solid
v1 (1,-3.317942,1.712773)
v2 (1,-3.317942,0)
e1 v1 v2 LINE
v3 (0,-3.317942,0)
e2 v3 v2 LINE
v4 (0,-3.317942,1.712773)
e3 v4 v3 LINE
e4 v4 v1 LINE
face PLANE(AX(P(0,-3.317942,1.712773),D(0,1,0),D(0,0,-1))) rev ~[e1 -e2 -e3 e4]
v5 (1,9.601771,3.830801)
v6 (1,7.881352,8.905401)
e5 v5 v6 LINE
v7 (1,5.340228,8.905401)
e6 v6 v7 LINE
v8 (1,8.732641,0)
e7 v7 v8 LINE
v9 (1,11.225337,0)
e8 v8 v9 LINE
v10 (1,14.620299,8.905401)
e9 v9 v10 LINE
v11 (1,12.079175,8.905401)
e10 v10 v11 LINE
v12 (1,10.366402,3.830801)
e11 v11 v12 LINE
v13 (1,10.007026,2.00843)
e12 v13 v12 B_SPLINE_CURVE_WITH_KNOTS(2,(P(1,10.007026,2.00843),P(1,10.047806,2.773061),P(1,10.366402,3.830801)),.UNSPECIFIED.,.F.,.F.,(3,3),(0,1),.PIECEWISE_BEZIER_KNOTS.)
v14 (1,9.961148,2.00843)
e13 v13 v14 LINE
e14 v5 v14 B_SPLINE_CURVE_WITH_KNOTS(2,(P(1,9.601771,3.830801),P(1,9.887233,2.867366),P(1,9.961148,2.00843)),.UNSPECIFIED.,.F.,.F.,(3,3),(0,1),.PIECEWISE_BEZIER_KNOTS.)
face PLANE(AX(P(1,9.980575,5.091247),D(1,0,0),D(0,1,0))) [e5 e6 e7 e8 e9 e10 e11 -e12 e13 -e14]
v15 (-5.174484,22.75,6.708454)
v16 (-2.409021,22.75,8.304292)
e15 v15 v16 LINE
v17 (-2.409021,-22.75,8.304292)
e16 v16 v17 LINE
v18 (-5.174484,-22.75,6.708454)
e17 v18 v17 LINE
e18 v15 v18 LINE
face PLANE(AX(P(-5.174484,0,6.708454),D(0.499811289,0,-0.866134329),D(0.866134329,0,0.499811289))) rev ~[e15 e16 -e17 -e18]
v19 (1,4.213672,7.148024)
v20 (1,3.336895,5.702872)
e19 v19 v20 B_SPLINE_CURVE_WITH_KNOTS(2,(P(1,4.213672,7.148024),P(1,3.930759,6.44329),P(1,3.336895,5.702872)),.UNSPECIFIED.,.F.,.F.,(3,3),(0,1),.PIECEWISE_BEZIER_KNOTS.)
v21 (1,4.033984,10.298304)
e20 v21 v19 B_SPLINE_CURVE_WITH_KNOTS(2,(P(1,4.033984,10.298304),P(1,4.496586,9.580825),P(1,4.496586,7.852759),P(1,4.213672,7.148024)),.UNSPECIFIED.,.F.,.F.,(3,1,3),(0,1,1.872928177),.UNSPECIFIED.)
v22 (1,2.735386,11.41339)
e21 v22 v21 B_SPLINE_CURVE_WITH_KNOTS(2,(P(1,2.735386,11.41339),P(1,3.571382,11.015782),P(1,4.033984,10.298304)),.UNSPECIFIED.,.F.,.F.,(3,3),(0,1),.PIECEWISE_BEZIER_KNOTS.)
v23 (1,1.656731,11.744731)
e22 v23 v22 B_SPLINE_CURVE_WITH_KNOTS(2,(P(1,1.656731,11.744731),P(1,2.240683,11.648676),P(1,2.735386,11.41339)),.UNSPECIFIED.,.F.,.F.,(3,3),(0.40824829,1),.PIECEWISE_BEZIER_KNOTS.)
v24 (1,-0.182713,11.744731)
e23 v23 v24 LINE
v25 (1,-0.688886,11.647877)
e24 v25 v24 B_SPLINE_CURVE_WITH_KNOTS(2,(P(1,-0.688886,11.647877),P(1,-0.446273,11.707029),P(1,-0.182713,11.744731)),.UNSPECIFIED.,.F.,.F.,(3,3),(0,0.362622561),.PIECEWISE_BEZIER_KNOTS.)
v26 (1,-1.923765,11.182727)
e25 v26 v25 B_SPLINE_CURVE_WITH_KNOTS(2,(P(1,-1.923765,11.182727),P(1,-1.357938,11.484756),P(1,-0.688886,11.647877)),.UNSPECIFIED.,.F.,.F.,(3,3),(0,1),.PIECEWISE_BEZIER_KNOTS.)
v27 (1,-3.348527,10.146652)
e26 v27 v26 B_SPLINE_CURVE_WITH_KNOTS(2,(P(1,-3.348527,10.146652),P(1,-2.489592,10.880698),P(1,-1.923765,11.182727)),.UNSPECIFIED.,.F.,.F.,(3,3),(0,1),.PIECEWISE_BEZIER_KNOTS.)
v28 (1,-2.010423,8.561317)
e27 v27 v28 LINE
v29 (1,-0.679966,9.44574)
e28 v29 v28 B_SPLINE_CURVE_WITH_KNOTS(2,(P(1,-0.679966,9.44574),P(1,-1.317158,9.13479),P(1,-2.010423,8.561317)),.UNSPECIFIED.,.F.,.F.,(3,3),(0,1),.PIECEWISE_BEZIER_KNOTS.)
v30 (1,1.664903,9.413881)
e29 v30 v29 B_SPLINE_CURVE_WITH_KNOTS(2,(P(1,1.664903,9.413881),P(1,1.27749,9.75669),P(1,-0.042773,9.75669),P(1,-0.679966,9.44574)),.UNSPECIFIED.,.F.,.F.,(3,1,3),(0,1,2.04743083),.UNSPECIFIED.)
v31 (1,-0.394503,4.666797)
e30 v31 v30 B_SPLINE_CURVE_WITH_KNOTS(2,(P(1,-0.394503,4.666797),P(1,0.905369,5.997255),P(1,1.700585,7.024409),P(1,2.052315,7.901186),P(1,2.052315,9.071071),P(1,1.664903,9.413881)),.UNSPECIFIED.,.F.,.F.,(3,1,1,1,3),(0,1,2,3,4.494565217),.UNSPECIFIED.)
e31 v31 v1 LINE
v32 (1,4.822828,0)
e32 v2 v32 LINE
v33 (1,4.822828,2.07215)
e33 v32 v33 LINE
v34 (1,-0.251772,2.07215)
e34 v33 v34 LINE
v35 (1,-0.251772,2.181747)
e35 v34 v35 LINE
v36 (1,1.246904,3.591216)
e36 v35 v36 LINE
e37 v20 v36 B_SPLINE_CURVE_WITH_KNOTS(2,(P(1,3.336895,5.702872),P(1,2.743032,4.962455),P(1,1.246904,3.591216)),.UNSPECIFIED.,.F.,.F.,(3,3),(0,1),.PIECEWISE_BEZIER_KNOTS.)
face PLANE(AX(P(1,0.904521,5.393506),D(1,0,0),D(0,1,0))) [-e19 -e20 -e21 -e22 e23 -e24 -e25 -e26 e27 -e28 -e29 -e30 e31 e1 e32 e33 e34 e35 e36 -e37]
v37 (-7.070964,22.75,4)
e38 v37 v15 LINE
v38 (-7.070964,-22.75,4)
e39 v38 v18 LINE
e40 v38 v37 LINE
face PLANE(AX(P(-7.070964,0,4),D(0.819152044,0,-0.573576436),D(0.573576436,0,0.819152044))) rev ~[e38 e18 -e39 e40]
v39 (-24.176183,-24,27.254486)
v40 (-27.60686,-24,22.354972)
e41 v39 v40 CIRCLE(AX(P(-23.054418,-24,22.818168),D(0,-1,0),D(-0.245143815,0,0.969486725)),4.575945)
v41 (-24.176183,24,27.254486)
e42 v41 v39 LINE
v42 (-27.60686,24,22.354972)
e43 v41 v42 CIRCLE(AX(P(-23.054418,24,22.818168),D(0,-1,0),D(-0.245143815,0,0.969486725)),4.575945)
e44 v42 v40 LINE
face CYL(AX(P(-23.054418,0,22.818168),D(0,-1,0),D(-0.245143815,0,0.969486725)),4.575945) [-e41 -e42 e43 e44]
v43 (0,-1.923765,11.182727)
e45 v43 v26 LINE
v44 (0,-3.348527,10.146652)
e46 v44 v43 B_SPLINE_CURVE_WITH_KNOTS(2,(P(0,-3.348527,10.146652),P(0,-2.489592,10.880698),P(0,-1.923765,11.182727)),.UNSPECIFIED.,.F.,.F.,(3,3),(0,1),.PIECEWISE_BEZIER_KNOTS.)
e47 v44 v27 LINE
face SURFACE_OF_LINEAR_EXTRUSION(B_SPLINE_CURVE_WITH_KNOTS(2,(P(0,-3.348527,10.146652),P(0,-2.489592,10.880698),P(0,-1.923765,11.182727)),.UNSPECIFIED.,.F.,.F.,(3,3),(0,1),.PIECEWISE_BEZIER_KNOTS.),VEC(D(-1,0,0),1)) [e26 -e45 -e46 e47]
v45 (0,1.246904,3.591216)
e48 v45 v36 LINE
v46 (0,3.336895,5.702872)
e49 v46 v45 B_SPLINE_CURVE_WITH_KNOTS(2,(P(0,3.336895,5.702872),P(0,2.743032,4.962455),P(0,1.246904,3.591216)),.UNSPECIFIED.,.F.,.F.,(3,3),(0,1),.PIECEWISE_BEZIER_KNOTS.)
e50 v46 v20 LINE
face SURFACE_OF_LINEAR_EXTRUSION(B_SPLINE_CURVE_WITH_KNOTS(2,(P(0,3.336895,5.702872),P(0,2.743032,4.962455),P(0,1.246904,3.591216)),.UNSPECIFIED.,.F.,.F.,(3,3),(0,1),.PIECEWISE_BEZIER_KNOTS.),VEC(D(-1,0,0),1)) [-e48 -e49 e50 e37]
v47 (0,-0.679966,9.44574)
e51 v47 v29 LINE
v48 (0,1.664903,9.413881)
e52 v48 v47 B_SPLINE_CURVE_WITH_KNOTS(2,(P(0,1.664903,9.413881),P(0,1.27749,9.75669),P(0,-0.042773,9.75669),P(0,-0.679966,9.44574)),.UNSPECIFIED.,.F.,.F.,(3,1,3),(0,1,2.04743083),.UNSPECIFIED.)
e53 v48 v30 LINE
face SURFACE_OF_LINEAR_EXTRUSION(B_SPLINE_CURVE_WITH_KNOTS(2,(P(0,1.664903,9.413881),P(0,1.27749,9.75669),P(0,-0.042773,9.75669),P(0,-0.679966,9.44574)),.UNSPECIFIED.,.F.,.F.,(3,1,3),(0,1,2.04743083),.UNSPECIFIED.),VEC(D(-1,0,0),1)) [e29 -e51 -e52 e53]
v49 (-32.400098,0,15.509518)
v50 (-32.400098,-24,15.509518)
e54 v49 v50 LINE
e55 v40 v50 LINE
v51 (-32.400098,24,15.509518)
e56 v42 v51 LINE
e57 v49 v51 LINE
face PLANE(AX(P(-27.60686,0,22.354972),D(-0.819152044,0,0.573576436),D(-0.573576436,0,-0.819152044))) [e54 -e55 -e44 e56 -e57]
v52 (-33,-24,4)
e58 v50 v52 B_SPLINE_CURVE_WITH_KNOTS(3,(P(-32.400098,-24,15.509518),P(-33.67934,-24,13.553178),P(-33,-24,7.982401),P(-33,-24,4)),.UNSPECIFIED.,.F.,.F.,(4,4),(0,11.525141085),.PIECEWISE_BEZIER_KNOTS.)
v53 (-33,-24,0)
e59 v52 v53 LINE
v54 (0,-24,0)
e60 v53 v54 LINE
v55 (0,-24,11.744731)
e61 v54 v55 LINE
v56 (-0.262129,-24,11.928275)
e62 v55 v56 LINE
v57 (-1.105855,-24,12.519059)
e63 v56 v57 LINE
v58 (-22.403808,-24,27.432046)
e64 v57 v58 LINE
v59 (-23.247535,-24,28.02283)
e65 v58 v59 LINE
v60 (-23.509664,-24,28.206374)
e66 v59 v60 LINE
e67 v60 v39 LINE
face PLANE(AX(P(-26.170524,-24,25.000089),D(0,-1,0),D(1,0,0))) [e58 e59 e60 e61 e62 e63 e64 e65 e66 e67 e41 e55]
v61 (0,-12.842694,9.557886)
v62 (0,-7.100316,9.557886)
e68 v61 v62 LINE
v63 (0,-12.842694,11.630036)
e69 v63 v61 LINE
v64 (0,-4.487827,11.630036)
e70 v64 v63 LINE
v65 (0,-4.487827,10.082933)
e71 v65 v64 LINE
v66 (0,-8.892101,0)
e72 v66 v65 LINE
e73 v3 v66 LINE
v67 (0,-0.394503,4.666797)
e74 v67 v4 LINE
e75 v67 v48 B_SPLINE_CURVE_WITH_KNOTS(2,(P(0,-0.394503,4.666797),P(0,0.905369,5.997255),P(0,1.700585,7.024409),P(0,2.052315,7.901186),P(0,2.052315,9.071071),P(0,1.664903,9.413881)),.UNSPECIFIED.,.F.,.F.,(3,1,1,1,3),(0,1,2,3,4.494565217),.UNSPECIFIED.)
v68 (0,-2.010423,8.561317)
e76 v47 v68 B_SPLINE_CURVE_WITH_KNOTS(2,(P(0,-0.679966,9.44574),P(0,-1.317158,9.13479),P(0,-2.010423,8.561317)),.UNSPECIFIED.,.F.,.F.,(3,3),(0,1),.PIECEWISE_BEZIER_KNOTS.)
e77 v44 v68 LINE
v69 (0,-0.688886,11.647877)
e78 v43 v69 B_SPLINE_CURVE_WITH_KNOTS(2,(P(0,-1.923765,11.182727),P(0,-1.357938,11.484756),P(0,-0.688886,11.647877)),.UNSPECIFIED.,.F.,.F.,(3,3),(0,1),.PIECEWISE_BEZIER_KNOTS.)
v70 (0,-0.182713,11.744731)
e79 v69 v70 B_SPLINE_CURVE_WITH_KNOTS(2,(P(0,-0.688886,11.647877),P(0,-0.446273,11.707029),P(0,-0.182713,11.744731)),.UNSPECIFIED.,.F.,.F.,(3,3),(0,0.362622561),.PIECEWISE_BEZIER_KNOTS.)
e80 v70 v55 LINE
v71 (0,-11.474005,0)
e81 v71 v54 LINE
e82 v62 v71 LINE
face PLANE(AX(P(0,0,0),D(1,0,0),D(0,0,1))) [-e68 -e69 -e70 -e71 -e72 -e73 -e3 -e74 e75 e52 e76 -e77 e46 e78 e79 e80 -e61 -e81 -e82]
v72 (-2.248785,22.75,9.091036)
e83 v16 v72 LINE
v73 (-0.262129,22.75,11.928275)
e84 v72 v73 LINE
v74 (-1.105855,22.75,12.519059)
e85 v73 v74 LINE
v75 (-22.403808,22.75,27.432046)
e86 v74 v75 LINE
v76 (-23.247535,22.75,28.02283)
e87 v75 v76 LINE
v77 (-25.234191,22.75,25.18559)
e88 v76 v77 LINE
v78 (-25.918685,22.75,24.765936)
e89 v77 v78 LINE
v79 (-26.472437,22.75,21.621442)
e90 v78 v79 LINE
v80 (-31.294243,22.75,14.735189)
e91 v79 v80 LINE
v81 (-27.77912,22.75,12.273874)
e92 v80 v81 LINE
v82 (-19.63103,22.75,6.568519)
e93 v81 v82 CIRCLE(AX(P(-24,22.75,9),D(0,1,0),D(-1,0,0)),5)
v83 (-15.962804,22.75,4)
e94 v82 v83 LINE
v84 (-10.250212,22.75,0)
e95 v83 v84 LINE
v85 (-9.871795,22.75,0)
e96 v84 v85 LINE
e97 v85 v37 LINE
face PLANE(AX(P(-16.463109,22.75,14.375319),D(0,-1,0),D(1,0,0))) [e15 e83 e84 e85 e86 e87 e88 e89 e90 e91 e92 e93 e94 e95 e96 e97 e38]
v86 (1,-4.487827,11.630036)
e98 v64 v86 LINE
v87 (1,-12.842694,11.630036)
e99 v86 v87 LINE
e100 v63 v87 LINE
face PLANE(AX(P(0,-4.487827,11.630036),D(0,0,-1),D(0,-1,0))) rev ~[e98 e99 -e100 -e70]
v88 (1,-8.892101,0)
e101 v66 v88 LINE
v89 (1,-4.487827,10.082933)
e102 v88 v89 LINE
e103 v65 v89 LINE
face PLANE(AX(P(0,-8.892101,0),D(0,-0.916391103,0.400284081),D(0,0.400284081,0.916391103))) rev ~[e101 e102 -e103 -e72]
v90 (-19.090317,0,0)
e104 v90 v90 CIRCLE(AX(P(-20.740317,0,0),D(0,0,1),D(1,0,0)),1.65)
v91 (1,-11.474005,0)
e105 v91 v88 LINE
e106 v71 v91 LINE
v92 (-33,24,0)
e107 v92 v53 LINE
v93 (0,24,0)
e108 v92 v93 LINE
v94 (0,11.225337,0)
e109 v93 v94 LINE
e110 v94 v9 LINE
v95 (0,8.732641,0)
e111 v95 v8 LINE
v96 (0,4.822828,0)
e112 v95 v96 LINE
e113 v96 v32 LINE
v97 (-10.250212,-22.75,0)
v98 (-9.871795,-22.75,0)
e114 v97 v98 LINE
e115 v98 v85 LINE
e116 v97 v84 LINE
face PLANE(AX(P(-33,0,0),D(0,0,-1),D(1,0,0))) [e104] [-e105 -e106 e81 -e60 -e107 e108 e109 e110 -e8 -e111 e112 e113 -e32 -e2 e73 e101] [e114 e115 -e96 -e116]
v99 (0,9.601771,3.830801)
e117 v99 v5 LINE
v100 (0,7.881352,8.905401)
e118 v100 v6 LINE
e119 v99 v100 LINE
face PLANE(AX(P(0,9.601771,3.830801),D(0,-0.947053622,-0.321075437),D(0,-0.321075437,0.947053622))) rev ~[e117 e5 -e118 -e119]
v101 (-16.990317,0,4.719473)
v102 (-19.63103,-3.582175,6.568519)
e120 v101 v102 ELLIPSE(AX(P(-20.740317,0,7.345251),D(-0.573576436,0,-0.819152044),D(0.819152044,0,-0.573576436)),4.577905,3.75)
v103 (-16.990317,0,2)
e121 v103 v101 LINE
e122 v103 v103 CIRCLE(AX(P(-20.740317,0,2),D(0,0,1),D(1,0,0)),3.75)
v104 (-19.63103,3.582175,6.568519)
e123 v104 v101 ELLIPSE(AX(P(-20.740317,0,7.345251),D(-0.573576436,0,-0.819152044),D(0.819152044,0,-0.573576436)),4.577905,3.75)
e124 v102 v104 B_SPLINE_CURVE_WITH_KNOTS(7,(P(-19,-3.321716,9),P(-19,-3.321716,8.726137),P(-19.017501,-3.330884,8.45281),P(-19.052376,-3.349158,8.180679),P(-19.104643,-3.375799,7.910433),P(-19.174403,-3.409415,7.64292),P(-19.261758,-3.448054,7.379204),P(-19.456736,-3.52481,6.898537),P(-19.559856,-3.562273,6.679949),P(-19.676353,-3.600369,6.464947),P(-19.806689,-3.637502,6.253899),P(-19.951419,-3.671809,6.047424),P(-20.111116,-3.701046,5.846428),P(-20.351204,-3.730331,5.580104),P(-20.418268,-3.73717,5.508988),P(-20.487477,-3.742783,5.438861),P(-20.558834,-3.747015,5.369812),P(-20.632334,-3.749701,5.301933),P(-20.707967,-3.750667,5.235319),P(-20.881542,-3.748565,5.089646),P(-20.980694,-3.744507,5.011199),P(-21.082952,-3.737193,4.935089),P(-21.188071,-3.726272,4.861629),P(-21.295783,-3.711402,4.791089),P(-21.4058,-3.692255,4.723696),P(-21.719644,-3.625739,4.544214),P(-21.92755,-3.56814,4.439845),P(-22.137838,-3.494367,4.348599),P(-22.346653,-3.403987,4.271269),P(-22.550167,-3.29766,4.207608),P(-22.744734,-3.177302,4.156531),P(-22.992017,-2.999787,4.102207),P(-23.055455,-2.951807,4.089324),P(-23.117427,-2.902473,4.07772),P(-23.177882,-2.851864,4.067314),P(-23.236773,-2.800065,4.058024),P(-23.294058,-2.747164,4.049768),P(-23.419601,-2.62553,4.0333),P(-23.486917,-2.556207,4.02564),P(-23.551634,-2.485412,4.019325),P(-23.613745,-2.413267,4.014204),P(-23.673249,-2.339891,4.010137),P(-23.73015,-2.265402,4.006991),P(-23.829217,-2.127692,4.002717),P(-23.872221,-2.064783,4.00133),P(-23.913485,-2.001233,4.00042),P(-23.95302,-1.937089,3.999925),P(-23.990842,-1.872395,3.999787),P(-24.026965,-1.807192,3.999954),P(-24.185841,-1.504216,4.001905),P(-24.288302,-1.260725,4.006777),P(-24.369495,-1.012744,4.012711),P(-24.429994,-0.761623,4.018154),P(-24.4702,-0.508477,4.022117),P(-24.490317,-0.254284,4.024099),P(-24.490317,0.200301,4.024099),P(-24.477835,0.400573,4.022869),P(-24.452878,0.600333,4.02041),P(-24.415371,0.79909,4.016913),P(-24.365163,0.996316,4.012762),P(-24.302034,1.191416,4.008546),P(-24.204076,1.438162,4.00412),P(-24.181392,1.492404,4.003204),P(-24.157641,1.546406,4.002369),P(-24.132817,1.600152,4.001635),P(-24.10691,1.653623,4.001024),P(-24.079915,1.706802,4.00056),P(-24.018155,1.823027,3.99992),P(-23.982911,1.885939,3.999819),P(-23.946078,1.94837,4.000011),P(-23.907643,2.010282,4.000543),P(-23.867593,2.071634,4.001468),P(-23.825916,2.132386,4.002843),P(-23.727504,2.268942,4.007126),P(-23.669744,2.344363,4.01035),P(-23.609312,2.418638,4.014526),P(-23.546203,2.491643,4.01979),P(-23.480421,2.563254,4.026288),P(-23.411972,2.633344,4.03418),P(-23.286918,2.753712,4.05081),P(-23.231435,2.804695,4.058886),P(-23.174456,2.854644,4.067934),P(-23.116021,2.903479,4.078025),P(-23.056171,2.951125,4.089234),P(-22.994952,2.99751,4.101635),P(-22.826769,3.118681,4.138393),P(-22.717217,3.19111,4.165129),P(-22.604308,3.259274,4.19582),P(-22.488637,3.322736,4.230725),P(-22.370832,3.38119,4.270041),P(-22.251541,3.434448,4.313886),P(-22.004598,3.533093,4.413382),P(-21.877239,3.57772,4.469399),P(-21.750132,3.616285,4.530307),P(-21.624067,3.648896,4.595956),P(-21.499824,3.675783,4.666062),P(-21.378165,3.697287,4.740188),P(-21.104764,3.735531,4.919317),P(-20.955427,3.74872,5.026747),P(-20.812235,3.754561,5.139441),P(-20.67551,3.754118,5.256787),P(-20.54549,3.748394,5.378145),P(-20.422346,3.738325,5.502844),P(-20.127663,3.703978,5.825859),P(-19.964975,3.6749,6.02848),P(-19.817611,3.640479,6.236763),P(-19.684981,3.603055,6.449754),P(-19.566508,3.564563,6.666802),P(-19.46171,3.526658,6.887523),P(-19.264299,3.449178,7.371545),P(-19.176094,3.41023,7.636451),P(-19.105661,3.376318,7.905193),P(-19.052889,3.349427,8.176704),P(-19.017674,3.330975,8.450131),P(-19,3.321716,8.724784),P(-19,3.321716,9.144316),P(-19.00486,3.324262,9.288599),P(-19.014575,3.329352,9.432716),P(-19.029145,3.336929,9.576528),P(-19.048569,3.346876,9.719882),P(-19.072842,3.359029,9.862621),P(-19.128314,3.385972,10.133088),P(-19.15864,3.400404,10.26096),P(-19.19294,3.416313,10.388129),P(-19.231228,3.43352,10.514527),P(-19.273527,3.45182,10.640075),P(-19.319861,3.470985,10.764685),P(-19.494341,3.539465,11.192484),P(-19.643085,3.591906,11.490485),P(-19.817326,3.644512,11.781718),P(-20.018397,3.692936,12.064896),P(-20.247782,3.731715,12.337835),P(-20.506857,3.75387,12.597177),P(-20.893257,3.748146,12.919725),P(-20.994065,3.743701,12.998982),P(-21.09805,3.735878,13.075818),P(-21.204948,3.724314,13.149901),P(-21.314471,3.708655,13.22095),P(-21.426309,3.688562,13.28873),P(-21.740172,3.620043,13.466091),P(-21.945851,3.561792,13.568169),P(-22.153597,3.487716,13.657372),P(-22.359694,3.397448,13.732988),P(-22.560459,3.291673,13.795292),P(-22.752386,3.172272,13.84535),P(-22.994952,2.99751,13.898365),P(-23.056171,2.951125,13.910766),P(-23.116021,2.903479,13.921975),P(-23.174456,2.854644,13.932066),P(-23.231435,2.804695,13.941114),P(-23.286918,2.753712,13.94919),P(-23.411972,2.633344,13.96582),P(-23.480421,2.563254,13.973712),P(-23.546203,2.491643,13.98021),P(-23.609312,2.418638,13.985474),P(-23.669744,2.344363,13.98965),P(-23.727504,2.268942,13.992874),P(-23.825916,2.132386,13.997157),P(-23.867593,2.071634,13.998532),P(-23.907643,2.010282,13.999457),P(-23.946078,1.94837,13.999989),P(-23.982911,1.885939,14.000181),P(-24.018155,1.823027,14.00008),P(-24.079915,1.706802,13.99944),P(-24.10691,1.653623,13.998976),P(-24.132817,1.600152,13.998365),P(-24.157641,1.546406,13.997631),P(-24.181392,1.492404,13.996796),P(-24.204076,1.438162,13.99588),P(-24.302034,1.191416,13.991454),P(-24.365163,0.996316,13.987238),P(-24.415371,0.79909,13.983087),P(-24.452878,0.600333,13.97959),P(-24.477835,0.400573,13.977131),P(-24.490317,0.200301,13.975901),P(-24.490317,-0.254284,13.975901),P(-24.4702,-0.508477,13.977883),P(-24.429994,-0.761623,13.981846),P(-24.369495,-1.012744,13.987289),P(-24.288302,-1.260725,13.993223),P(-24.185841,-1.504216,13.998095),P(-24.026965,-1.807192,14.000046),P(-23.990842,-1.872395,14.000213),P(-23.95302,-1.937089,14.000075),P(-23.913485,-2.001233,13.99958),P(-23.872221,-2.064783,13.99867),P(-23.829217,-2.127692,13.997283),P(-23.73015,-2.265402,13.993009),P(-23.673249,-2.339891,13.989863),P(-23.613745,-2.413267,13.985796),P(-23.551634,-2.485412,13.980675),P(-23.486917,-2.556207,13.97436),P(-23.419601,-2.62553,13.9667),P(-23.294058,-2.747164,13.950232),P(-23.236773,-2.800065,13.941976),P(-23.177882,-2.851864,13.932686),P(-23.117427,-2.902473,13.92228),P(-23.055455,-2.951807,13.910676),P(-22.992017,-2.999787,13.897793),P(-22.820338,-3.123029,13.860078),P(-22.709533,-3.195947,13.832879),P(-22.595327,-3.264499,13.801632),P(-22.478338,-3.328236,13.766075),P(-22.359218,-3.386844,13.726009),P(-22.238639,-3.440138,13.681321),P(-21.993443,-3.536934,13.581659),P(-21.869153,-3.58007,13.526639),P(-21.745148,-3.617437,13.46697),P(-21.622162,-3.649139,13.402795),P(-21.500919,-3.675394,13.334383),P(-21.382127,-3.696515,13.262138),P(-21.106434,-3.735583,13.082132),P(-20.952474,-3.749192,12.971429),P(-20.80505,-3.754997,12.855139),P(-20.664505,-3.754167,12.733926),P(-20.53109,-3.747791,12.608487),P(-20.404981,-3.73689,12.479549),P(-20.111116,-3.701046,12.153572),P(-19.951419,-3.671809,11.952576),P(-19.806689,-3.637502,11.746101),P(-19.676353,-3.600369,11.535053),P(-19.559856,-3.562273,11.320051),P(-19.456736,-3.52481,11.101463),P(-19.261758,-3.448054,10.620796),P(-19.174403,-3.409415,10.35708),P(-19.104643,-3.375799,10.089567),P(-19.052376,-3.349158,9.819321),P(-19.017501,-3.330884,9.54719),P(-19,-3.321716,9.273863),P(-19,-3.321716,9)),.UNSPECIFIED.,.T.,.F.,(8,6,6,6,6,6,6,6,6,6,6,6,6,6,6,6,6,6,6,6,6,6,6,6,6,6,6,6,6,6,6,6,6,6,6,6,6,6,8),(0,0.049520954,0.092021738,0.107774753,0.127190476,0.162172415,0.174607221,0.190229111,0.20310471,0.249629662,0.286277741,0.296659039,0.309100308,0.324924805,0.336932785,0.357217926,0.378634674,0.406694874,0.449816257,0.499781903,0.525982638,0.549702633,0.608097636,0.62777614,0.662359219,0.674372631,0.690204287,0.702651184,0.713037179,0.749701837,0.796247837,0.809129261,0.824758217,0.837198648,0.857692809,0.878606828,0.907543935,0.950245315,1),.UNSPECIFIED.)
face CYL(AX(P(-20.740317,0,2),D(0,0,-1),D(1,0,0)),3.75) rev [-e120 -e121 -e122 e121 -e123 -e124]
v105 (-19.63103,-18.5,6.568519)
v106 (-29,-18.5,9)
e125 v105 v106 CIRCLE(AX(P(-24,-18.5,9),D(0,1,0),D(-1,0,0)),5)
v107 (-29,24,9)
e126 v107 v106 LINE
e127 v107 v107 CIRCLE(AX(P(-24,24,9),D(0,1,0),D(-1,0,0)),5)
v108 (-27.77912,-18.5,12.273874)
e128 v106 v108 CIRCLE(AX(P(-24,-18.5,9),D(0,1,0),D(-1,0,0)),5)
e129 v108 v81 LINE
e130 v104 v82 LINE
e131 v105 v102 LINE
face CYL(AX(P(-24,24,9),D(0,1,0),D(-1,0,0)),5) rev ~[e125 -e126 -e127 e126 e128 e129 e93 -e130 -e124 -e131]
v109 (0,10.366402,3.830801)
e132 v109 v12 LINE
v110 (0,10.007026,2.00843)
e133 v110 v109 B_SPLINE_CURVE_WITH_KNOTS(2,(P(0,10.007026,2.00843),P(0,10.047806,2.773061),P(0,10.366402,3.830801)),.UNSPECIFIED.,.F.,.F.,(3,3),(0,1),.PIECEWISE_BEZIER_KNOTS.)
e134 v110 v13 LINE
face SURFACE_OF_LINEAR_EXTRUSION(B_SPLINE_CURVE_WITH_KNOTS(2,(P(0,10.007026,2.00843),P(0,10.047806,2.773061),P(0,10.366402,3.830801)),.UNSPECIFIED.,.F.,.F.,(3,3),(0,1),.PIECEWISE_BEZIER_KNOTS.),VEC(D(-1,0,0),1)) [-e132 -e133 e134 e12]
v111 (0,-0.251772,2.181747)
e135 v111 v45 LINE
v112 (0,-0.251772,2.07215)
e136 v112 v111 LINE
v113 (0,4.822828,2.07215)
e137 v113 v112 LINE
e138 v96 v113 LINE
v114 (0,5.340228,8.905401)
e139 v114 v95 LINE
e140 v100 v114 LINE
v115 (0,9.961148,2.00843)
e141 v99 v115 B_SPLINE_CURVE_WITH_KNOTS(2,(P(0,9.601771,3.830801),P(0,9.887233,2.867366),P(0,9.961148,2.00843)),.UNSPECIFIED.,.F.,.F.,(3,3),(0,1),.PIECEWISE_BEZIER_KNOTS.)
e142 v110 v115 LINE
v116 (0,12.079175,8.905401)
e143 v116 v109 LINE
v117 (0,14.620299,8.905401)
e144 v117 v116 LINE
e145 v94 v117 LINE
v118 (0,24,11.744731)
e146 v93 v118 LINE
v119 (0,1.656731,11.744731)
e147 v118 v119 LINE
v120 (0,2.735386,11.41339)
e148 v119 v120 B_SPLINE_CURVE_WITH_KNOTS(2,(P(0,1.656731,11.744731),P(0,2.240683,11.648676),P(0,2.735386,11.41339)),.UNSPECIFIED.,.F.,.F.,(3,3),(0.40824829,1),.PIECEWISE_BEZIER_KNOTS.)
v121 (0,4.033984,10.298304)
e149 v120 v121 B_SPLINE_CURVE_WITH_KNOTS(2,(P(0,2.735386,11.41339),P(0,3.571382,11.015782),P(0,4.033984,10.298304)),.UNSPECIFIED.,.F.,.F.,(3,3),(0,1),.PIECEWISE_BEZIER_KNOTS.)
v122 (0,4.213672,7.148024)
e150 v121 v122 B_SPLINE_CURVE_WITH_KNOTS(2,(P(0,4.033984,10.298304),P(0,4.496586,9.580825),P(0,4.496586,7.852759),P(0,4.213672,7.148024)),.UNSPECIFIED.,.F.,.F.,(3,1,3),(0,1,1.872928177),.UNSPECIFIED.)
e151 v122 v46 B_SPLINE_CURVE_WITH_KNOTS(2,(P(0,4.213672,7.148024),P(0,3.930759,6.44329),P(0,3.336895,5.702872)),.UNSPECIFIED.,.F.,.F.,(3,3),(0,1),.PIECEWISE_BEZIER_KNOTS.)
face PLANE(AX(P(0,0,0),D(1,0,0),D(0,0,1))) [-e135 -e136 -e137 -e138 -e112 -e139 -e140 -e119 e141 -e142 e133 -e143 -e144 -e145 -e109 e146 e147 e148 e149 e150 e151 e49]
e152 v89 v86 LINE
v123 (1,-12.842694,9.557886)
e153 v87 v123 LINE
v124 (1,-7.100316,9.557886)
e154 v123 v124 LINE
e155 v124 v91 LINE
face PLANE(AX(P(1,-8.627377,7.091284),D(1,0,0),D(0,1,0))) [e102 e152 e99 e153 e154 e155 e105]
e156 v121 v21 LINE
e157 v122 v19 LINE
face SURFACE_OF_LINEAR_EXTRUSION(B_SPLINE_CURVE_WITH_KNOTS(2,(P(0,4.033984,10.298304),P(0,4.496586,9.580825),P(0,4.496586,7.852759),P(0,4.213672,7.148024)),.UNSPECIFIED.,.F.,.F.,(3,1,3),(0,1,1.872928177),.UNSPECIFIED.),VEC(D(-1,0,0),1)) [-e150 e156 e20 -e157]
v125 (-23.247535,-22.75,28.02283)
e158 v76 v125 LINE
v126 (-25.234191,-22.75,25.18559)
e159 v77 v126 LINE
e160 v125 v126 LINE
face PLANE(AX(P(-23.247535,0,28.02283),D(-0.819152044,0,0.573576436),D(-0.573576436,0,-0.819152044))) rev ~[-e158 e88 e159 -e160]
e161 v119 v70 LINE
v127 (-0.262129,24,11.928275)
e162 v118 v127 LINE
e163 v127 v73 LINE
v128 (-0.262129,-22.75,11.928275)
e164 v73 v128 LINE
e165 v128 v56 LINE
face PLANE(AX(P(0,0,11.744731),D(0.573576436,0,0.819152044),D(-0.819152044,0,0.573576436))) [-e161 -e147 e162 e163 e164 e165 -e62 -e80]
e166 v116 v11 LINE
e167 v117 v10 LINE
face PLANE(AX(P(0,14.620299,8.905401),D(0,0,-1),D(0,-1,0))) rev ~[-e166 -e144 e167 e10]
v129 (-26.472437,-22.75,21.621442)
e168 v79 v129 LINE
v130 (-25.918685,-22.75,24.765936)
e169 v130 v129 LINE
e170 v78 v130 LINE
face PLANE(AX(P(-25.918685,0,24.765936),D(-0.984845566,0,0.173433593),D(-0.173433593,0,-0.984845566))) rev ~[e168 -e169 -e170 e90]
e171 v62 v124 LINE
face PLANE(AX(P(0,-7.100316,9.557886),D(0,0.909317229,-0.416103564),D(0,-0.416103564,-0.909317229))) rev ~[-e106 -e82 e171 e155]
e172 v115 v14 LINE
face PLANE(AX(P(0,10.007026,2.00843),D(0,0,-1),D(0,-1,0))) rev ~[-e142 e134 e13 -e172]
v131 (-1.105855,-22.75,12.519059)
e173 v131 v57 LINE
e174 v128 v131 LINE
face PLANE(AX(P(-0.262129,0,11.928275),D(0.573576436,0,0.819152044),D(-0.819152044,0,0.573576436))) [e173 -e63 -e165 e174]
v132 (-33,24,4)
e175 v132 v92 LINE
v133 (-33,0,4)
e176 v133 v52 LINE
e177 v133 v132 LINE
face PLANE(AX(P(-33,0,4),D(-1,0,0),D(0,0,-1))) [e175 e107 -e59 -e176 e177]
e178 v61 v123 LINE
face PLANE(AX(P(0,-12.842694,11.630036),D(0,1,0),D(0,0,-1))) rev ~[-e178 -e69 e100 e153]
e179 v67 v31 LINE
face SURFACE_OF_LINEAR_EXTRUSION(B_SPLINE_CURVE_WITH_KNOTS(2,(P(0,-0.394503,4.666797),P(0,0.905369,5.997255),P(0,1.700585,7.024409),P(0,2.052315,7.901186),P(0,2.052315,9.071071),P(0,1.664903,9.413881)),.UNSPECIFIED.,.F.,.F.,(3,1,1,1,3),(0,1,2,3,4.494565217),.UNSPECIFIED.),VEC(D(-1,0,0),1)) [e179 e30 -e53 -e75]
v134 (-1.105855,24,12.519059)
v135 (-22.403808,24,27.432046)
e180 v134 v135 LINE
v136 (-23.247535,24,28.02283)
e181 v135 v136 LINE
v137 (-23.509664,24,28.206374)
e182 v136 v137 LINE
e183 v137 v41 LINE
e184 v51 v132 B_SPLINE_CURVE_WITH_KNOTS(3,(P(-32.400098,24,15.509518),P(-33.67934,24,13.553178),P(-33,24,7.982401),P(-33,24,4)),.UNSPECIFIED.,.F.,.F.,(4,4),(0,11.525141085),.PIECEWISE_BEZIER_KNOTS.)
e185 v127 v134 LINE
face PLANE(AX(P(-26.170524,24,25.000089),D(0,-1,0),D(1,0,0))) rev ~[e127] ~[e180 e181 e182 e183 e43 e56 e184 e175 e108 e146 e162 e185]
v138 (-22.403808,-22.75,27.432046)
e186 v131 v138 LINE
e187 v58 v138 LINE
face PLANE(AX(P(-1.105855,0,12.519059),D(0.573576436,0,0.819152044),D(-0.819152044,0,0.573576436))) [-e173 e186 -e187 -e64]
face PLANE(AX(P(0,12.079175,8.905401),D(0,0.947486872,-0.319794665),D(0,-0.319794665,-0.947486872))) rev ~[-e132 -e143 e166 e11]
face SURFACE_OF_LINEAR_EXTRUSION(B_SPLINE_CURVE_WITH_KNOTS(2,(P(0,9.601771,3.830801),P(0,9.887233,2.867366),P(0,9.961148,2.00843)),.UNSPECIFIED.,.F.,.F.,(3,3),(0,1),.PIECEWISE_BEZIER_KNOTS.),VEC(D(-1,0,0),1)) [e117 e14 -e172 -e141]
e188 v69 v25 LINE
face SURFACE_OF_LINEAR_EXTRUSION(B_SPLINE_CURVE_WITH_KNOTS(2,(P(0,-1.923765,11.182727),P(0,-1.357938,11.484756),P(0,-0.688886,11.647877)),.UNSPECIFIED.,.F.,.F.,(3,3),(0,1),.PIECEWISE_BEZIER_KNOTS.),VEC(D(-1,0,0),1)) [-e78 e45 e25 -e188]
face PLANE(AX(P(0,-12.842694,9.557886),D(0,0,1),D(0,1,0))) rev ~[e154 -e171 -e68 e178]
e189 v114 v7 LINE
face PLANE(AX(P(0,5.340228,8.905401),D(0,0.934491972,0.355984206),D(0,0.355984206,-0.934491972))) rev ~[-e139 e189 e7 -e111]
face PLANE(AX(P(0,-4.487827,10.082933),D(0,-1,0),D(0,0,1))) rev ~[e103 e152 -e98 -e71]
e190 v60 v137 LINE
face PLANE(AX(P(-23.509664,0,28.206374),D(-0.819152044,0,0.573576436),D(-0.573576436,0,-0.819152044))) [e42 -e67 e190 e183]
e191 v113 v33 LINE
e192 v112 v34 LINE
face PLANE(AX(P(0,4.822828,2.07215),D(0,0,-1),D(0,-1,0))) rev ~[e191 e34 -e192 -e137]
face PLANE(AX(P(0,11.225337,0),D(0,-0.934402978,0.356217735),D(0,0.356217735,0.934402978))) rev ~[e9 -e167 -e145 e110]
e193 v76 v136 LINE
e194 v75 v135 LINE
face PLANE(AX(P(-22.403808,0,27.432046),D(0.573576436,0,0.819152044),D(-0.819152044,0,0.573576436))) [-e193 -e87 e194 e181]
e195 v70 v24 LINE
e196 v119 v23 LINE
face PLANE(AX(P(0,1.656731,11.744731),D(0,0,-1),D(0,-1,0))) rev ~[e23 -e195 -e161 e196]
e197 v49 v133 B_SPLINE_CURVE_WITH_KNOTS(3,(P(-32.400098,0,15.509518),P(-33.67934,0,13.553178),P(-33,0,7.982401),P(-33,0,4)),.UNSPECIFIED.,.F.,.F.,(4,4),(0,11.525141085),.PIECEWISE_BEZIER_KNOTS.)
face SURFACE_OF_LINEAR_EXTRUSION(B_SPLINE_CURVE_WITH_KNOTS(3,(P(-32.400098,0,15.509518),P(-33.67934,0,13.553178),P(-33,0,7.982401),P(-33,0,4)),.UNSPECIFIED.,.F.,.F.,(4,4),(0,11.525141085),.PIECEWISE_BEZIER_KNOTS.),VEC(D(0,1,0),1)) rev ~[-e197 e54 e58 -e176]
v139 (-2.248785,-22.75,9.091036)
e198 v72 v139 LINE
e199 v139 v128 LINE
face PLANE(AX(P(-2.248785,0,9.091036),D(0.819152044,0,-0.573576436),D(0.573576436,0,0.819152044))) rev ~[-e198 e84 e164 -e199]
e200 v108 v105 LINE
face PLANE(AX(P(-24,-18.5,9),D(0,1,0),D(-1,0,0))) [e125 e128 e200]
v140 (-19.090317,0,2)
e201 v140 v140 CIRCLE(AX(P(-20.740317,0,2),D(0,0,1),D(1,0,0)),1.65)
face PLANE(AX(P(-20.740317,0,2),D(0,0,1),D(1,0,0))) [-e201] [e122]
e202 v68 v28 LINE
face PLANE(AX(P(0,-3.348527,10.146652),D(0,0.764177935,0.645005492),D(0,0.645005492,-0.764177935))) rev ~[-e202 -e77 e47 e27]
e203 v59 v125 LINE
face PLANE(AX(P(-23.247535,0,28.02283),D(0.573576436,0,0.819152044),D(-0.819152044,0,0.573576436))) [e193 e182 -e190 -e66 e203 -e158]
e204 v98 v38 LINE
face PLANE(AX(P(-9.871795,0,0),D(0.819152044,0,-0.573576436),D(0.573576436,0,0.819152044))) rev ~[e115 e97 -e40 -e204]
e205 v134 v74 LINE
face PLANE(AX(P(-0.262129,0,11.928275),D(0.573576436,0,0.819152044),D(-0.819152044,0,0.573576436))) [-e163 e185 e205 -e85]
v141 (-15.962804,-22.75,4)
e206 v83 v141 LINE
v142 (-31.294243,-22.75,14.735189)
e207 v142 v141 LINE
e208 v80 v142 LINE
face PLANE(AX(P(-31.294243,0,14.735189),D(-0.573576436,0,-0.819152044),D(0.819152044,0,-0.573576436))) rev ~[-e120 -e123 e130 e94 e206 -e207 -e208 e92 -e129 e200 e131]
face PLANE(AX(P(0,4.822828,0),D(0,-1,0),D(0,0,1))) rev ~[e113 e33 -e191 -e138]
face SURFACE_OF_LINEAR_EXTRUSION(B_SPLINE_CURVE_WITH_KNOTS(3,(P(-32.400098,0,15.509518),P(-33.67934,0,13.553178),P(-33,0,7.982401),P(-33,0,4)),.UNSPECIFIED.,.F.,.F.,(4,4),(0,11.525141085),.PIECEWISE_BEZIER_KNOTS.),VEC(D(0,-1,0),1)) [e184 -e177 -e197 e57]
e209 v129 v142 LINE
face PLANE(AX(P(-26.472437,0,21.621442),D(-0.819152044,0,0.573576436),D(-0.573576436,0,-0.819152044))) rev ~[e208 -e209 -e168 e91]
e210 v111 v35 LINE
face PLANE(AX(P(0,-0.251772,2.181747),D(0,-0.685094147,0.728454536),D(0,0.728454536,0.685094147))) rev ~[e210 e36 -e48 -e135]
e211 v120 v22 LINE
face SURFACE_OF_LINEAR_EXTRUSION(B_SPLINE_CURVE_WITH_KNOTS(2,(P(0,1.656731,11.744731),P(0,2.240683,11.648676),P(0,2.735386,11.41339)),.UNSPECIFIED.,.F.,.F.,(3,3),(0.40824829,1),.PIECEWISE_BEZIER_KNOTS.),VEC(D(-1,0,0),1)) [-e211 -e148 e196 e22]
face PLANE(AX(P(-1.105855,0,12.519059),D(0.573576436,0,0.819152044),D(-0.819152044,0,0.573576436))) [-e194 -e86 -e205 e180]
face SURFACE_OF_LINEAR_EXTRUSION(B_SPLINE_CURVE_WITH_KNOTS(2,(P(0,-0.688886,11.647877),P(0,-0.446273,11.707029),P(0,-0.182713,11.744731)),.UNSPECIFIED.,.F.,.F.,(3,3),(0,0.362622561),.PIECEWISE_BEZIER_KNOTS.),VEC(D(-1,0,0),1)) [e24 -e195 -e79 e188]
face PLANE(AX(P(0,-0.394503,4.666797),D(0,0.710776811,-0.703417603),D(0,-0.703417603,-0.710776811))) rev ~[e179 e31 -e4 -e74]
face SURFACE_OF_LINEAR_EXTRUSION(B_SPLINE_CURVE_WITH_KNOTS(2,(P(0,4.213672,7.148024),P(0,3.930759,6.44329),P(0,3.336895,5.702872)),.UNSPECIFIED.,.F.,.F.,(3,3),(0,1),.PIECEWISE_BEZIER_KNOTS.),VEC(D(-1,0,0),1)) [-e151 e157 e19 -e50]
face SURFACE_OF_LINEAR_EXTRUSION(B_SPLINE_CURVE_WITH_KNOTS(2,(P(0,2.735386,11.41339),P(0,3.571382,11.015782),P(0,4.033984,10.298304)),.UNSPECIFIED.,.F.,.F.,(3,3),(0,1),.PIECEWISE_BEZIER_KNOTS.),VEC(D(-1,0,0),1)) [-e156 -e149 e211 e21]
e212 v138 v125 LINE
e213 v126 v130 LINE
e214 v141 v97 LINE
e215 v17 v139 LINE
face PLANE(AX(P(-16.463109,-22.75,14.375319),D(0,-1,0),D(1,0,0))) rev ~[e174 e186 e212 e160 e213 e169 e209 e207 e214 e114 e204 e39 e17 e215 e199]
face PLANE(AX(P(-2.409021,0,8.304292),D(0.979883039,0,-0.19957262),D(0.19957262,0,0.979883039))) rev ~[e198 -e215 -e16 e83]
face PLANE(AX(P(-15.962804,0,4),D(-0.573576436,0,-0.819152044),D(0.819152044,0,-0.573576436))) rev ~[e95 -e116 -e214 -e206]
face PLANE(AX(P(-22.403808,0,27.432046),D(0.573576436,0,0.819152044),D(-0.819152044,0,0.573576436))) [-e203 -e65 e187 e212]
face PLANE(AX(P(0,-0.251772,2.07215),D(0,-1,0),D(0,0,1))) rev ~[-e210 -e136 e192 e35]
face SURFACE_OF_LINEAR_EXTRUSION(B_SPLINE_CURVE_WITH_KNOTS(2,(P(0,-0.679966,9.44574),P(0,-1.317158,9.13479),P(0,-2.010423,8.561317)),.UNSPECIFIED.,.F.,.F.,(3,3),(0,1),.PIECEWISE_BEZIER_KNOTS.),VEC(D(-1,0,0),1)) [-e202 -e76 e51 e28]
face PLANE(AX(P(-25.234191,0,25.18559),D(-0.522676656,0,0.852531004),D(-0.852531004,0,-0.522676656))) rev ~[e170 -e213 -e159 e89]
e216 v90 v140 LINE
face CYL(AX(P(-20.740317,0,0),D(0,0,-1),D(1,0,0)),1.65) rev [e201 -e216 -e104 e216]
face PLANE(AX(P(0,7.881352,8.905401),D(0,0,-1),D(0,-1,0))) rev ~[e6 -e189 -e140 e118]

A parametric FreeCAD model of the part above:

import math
import FreeCAD as App
import Part
import Sketcher

V = App.Vector
Q = App.Units.Quantity

doc = App.newDocument("Part")
body = doc.addObject("PartDesign::Body", "Body")

# Sketch on XZ plane
sketch1 = body.newObject("Sketcher::SketchObject", "Sketch")
sketch1.AttachmentSupport = (doc.getObject("XZ_Plane"), [""])
sketch1.MapMode = "FlatFace"
sketch1.addGeometry([
    Part.LineSegment(V(-23.509664, 28.206374, 0), V(-24.176183, 27.254486, 0)),  # 0
    Part.ArcOfCircle(Part.Circle(V(-23.054418, 22.818168, 0), V(0, 0, 1), 4.575945), math.radians(104.190333), math.radians(185.809667)),  # 1
    Part.LineSegment(V(-27.60686, 22.354972, 0), V(-32.400098, 15.509518, 0)),  # 2
    Part.BSplineCurve([V(-32.400098, 15.509518, 0), V(-33.67934, 13.553178, 0), V(-33, 7.982401, 0), V(-33, 4, 0)], [4, 4], [0, 11.525141085], False, 3, [1, 1, 1, 1], False),  # 3
    Part.LineSegment(V(-33, 4, 0), V(-33, 0, 0)),  # 4
    Part.LineSegment(V(-33, 0, 0), V(0, 0, 0)),  # 5
    Part.LineSegment(V(0, 0, 0), V(0, 11.744731, 0)),  # 6
    Part.LineSegment(V(0, 11.744731, 0), V(-0.262129, 11.928275, 0)),  # 7
    Part.LineSegment(V(-0.262129, 11.928275, 0), V(-1.105855, 12.519059, 0)),  # 8
    Part.LineSegment(V(-1.105855, 12.519059, 0), V(-22.403808, 27.432046, 0)),  # 9
    Part.LineSegment(V(-22.403808, 27.432046, 0), V(-23.247535, 28.02283, 0)),  # 10
    Part.LineSegment(V(-23.247535, 28.02283, 0), V(-23.509664, 28.206374, 0)),  # 11
], False)
sketch1.addConstraint([
    Sketcher.Constraint("Block", 3),
    Sketcher.Constraint("Coincident", 0, 2, 1, 1),
    Sketcher.Constraint("Coincident", 1, 2, 2, 1),
    Sketcher.Constraint("Coincident", 2, 2, 3, 1),
    Sketcher.Constraint("Coincident", 3, 2, 4, 1),
    Sketcher.Constraint("Coincident", 4, 2, 5, 1),
    Sketcher.Constraint("Coincident", 5, 2, 6, 1),
    Sketcher.Constraint("Coincident", 6, 2, 7, 1),
    Sketcher.Constraint("Coincident", 7, 2, 8, 1),
    Sketcher.Constraint("Coincident", 8, 2, 9, 1),
    Sketcher.Constraint("Coincident", 9, 2, 10, 1),
    Sketcher.Constraint("Coincident", 10, 2, 11, 1),
    Sketcher.Constraint("Coincident", 11, 2, 0, 1),
    Sketcher.Constraint("Vertical", 4),
    Sketcher.Constraint("Horizontal", 5),
    Sketcher.Constraint("Vertical", 6),
    Sketcher.Constraint("Coincident", 5, 2, -1, 1),
    Sketcher.Constraint("Parallel", 0, 2),
    Sketcher.Constraint("Perpendicular", 2, 7),
    Sketcher.Constraint("Parallel", 7, 8),
    Sketcher.Constraint("Parallel", 8, 9),
    Sketcher.Constraint("Parallel", 9, 10),
    Sketcher.Constraint("Parallel", 10, 11),
    Sketcher.Constraint("Equal", 8, 10),
    Sketcher.Constraint("Equal", 7, 11),
    Sketcher.Constraint("Angle", 0, Q("-125 deg")),
    Sketcher.Constraint("Distance", 9, Q("26 mm")),
    Sketcher.Constraint("Distance", 7, Q("0.32 mm")),
    Sketcher.Constraint("Distance", 8, Q("1.03 mm")),
    Sketcher.Constraint("Radius", 1, Q("4.575945 mm")),
    Sketcher.Constraint("DistanceY", 6, 1, 6, 2, Q("11.744731 mm")),
    Sketcher.Constraint("Distance", 0, Q("1.162041 mm")),
    Sketcher.Constraint("DistanceX", 1, 3, -1, 1, Q("23.054418 mm")),
])
pad1 = body.newObject("PartDesign::Pad", "Pad")
pad1.Profile = sketch1
pad1.Length = 48
pad1.Midplane = True

# Sketch on XZ plane
sketch2 = body.newObject("Sketcher::SketchObject", "Sketch001")
sketch2.AttachmentSupport = (doc.getObject("XZ_Plane"), [""])
sketch2.MapMode = "FlatFace"
sketch2.addGeometry([
    Part.LineSegment(V(-7.07, 4, 0), V(-5.17, 6.71, 0)),  # 0
    Part.LineSegment(V(-5.17, 6.71, 0), V(-2.41, 8.3, 0)),  # 1
    Part.LineSegment(V(-2.41, 8.3, 0), V(-2.25, 9.09, 0)),  # 2
    Part.LineSegment(V(-2.25, 9.09, 0), V(-0.26, 11.93, 0)),  # 3
    Part.LineSegment(V(-0.26, 11.93, 0), V(-1.11, 12.52, 0)),  # 4
    Part.LineSegment(V(-1.11, 12.52, 0), V(-22.4, 27.43, 0)),  # 5
    Part.LineSegment(V(-22.4, 27.43, 0), V(-23.25, 28.02, 0)),  # 6
    Part.LineSegment(V(-23.25, 28.02, 0), V(-25.23, 25.19, 0)),  # 7
    Part.LineSegment(V(-25.23, 25.19, 0), V(-25.92, 24.77, 0)),  # 8
    Part.LineSegment(V(-25.92, 24.77, 0), V(-26.47, 21.62, 0)),  # 9
    Part.LineSegment(V(-26.47, 21.62, 0), V(-31.29, 14.74, 0)),  # 10
    Part.LineSegment(V(-31.29, 14.74, 0), V(-15.96, 4, 0)),  # 11
    Part.LineSegment(V(-15.96, 4, 0), V(-10.25, 0, 0)),  # 12
    Part.LineSegment(V(-10.25, 0, 0), V(-9.87, 0, 0)),  # 13
    Part.LineSegment(V(-9.87, 0, 0), V(-7.07, 4, 0)),  # 14
], False)
sketch2.addConstraint([
    Sketcher.Constraint("Coincident", 0, 2, 1, 1),
    Sketcher.Constraint("Coincident", 1, 2, 2, 1),
    Sketcher.Constraint("Coincident", 2, 2, 3, 1),
    Sketcher.Constraint("Coincident", 3, 2, 4, 1),
    Sketcher.Constraint("Coincident", 4, 2, 5, 1),
    Sketcher.Constraint("Coincident", 5, 2, 6, 1),
    Sketcher.Constraint("Coincident", 6, 2, 7, 1),
    Sketcher.Constraint("Coincident", 7, 2, 8, 1),
    Sketcher.Constraint("Coincident", 8, 2, 9, 1),
    Sketcher.Constraint("Coincident", 9, 2, 10, 1),
    Sketcher.Constraint("Coincident", 10, 2, 11, 1),
    Sketcher.Constraint("Coincident", 11, 2, 12, 1),
    Sketcher.Constraint("Coincident", 12, 2, 13, 1),
    Sketcher.Constraint("Coincident", 13, 2, 14, 1),
    Sketcher.Constraint("Coincident", 14, 2, 0, 1),
    Sketcher.Constraint("Horizontal", 13),
    Sketcher.Constraint("PointOnObject", 12, 2, -1),
    Sketcher.Constraint("Parallel", 0, 3),
    Sketcher.Constraint("Perpendicular", 3, 4),
    Sketcher.Constraint("Parallel", 4, 5),
    Sketcher.Constraint("Parallel", 5, 6),
    Sketcher.Constraint("Perpendicular", 6, 7),
    Sketcher.Constraint("Parallel", 7, 10),
    Sketcher.Constraint("Perpendicular", 10, 11),
    Sketcher.Constraint("Parallel", 11, 12),
    Sketcher.Constraint("Perpendicular", 12, 14),
    Sketcher.Constraint("Horizontal", 11, 2, 14, 2),
    Sketcher.Constraint("Equal", 4, 6),
    Sketcher.Constraint("Equal", 3, 7),
    Sketcher.Constraint("Equal", 2, 8),
    Sketcher.Constraint("Equal", 1, 9),
    Sketcher.Constraint("Angle", 0, Q("55 deg")),
    Sketcher.Constraint("Distance", 5, Q("26 mm")),
    Sketcher.Constraint("DistanceY", -1, 1, 11, 2, Q("4 mm")),
    Sketcher.Constraint("Distance", 4, Q("1.03 mm")),
    Sketcher.Constraint("DistanceX", 0, 2, 2, 2, Q("2.925699 mm")),
    Sketcher.Constraint("DistanceX", 8, 2, 0, 2, Q("20.7442 mm")),
    Sketcher.Constraint("DistanceY", 10, 2, 7, 2, Q("10.450401 mm")),
    Sketcher.Constraint("Distance", 1, Q("3.19288 mm")),
    Sketcher.Constraint("Distance", 3, Q("3.46363 mm")),
    Sketcher.Constraint("Distance", 10, Q("8.406562 mm")),
    Sketcher.Constraint("Distance", 11, Q("18.716232 mm")),
    Sketcher.Constraint("DistanceX", 13, 1, 13, 2, Q("0.378417 mm")),
    Sketcher.Constraint("DistanceX", 1, 2, -1, 1, Q("2.409021 mm")),
    Sketcher.Constraint("DistanceY", -1, 1, 1, 2, Q("8.304292 mm")),
])
pocket1 = body.newObject("PartDesign::Pocket", "Pocket")
pocket1.Profile = sketch2
pocket1.Length = 45.5
pocket1.Midplane = True

# Sketch on XZ plane
sketch3 = body.newObject("Sketcher::SketchObject", "Sketch002")
sketch3.AttachmentSupport = (doc.getObject("XZ_Plane"), [""])
sketch3.MapMode = "FlatFace"
sketch3.AttachmentOffset = App.Placement(V(0, 0, -24), App.Rotation())
sketch3.addGeometry(Part.Circle(V(-24, 9, 0), V(0, 0, 1), 5), False)
sketch3.addConstraint([
    Sketcher.Constraint("Diameter", 0, Q("10 mm")),
    Sketcher.Constraint("DistanceX", 0, 3, -1, 1, Q("24 mm")),
    Sketcher.Constraint("DistanceY", -1, 1, 0, 3, Q("9 mm")),
])
pocket2 = body.newObject("PartDesign::Pocket", "Pocket001")
pocket2.Profile = sketch3
pocket2.Length = 42.5
pocket2.Reversed = True

# Sketch on XY plane
sketch4 = body.newObject("Sketcher::SketchObject", "Sketch003")
sketch4.AttachmentSupport = (doc.getObject("XY_Plane"), [""])
sketch4.MapMode = "FlatFace"
sketch4.addGeometry(Part.Circle(V(-20.7, 0, 0), V(0, 0, 1), 1.6), False)
sketch4.addConstraint([
    Sketcher.Constraint("PointOnObject", 0, 3, -1),
    Sketcher.Constraint("Diameter", 0, Q("3.3 mm")),
    Sketcher.Constraint("DistanceX", 0, 3, -1, 1, Q("20.740317 mm")),
])
pocket3 = body.newObject("PartDesign::Pocket", "Pocket002")
pocket3.Profile = sketch4
pocket3.Length = 25
pocket3.Reversed = True

# Sketch on XY plane
sketch5 = body.newObject("Sketcher::SketchObject", "Sketch004")
sketch5.AttachmentSupport = (doc.getObject("XY_Plane"), [""])
sketch5.MapMode = "FlatFace"
sketch5.AttachmentOffset = App.Placement(V(0, 0, 2), App.Rotation())
sketch5.addGeometry([
    Part.Circle(V(-20.7, 0, 0), V(0, 0, 1), 3.8),
    Part.Circle(V(-20.7, 0, 0), V(0, 0, 1), 1.6),
], False)
sketch5.addConstraint([
    Sketcher.Constraint("Coincident", 1, 3, 0, 3),
    Sketcher.Constraint("PointOnObject", 0, 3, -1),
    Sketcher.Constraint("Diameter", 0, Q("7.5 mm")),
    Sketcher.Constraint("Diameter", 1, Q("3.3 mm")),
    Sketcher.Constraint("DistanceX", 0, 3, -1, 1, Q("20.740317 mm")),
])
pocket4 = body.newObject("PartDesign::Pocket", "Pocket003")
pocket4.Profile = sketch5
pocket4.Length = 23
pocket4.Reversed = True

# Sketch on YZ plane
sketch6 = body.newObject("Sketcher::SketchObject", "Sketch005")
sketch6.AttachmentSupport = (doc.getObject("YZ_Plane"), [""])
sketch6.MapMode = "FlatFace"
sketch6.addGeometry([
    Part.LineSegment(V(-7.100316, 9.557886, 0), V(-11.474005, 0, 0)),  # 0
    Part.LineSegment(V(-11.474005, 0, 0), V(-8.892101, 0, 0)),  # 1
    Part.LineSegment(V(-8.892101, 0, 0), V(-4.487827, 10.082933, 0)),  # 2
    Part.LineSegment(V(-4.487827, 10.082933, 0), V(-4.487827, 11.630036, 0)),  # 3
    Part.LineSegment(V(-4.487827, 11.630036, 0), V(-12.842694, 11.630036, 0)),  # 4
    Part.LineSegment(V(-12.842694, 11.630036, 0), V(-12.842694, 9.557886, 0)),  # 5
    Part.LineSegment(V(-12.842694, 9.557886, 0), V(-7.100316, 9.557886, 0)),  # 6
    Part.LineSegment(V(-3.317942, 1.712773, 0), V(-3.317942, 0, 0)),  # 7
    Part.LineSegment(V(-3.317942, 0, 0), V(4.822828, 0, 0)),  # 8
    Part.LineSegment(V(4.822828, 0, 0), V(4.822828, 2.07215, 0)),  # 9
    Part.LineSegment(V(4.822828, 2.07215, 0), V(-0.251772, 2.07215, 0)),  # 10
    Part.LineSegment(V(-0.251772, 2.07215, 0), V(-0.251772, 2.181747, 0)),  # 11
    Part.LineSegment(V(-0.251772, 2.181747, 0), V(1.246904, 3.591216, 0)),  # 12
    Part.BSplineCurve([V(3.336895, 5.702872, 0), V(2.743032, 4.962455, 0), V(1.246904, 3.591216, 0)], [3, 3], [0, 1], False, 2, [1, 1, 1], False),  # 13
    Part.BSplineCurve([V(4.213672, 7.148024, 0), V(3.930759, 6.44329, 0), V(3.336895, 5.702872, 0)], [3, 3], [0, 1], False, 2, [1, 1, 1], False),  # 14
    Part.BSplineCurve([V(4.033984, 10.298304, 0), V(4.496586, 9.580825, 0), V(4.496586, 7.852759, 0), V(4.213672, 7.148024, 0)], [3, 1, 3], [0, 1, 1.872928177], False, 2, [1, 1, 1, 1], False),  # 15
    Part.BSplineCurve([V(2.735386, 11.41339, 0), V(3.571382, 11.015782, 0), V(4.033984, 10.298304, 0)], [3, 3], [0, 1], False, 2, [1, 1, 1], False),  # 16
    Part.BSplineCurve([V(1.656731, 11.744731, 0), V(2.240683, 11.648676, 0), V(2.735386, 11.41339, 0)], [3, 3], [0.40824829, 1], False, 2, [1, 1, 1], False),  # 17
    Part.LineSegment(V(1.656731, 11.744731, 0), V(-0.182713, 11.744731, 0)),  # 18
    Part.BSplineCurve([V(-0.688886, 11.647877, 0), V(-0.446273, 11.707029, 0), V(-0.182713, 11.744731, 0)], [3, 3], [0, 0.362622561], False, 2, [1, 1, 1], False),  # 19
    Part.BSplineCurve([V(-1.923765, 11.182727, 0), V(-1.357938, 11.484756, 0), V(-0.688886, 11.647877, 0)], [3, 3], [0, 1], False, 2, [1, 1, 1], False),  # 20
    Part.BSplineCurve([V(-3.348527, 10.146652, 0), V(-2.489592, 10.880698, 0), V(-1.923765, 11.182727, 0)], [3, 3], [0, 1], False, 2, [1, 1, 1], False),  # 21
    Part.LineSegment(V(-3.348527, 10.146652, 0), V(-2.010423, 8.561317, 0)),  # 22
    Part.BSplineCurve([V(-0.679966, 9.44574, 0), V(-1.317158, 9.13479, 0), V(-2.010423, 8.561317, 0)], [3, 3], [0, 1], False, 2, [1, 1, 1], False),  # 23
    Part.BSplineCurve([V(1.664902, 9.413881, 0), V(1.27749, 9.75669, 0), V(-0.042773, 9.75669, 0), V(-0.679966, 9.44574, 0)], [3, 1, 3], [0, 1, 2.04743083], False, 2, [1, 1, 1, 1], False),  # 24
    Part.BSplineCurve([V(-0.394503, 4.666797, 0), V(0.905369, 5.997255, 0), V(1.700585, 7.024409, 0), V(2.052315, 7.901186, 0), V(2.052315, 9.071071, 0), V(1.664902, 9.413881, 0)], [3, 1, 1, 1, 3], [0, 1, 2, 3, 4.494565218], False, 2, [1, 1, 1, 1, 1, 1], False),  # 25
    Part.LineSegment(V(-0.394503, 4.666797, 0), V(-3.317942, 1.712773, 0)),  # 26
    Part.LineSegment(V(5.340228, 8.905401, 0), V(8.732641, 0, 0)),  # 27
    Part.LineSegment(V(8.732641, 0, 0), V(11.225337, 0, 0)),  # 28
    Part.LineSegment(V(11.225337, 0, 0), V(14.620299, 8.905401, 0)),  # 29
    Part.LineSegment(V(14.620299, 8.905401, 0), V(12.079175, 8.905401, 0)),  # 30
    Part.LineSegment(V(12.079175, 8.905401, 0), V(10.366402, 3.830801, 0)),  # 31
    Part.BSplineCurve([V(10.007026, 2.00843, 0), V(10.047806, 2.773061, 0), V(10.366402, 3.830801, 0)], [3, 3], [0, 1], False, 2, [1, 1, 1], False),  # 32
    Part.LineSegment(V(10.007026, 2.00843, 0), V(9.961148, 2.00843, 0)),  # 33
    Part.BSplineCurve([V(9.601771, 3.830801, 0), V(9.887233, 2.867366, 0), V(9.961148, 2.00843, 0)], [3, 3], [0, 1], False, 2, [1, 1, 1], False),  # 34
    Part.LineSegment(V(9.601771, 3.830801, 0), V(7.881352, 8.905401, 0)),  # 35
    Part.LineSegment(V(7.881352, 8.905401, 0), V(5.340228, 8.905401, 0)),  # 36
], False)
sketch6.addConstraint([
    Sketcher.Constraint("Block", 13),
    Sketcher.Constraint("Block", 14),
    Sketcher.Constraint("Block", 15),
    Sketcher.Constraint("Block", 16),
    Sketcher.Constraint("Block", 17),
    Sketcher.Constraint("Block", 19),
    Sketcher.Constraint("Block", 20),
    Sketcher.Constraint("Block", 21),
    Sketcher.Constraint("Block", 23),
    Sketcher.Constraint("Block", 24),
    Sketcher.Constraint("Block", 25),
    Sketcher.Constraint("Block", 32),
    Sketcher.Constraint("Block", 34),
    Sketcher.Constraint("Coincident", 0, 2, 1, 1),
    Sketcher.Constraint("Coincident", 1, 2, 2, 1),
    Sketcher.Constraint("Coincident", 2, 2, 3, 1),
    Sketcher.Constraint("Coincident", 3, 2, 4, 1),
    Sketcher.Constraint("Coincident", 4, 2, 5, 1),
    Sketcher.Constraint("Coincident", 5, 2, 6, 1),
    Sketcher.Constraint("Coincident", 6, 2, 0, 1),
    Sketcher.Constraint("Coincident", 7, 2, 8, 1),
    Sketcher.Constraint("Coincident", 8, 2, 9, 1),
    Sketcher.Constraint("Coincident", 9, 2, 10, 1),
    Sketcher.Constraint("Coincident", 10, 2, 11, 1),
    Sketcher.Constraint("Coincident", 11, 2, 12, 1),
    Sketcher.Constraint("Coincident", 12, 2, 13, 2),
    Sketcher.Constraint("Coincident", 17, 1, 18, 1),
    Sketcher.Constraint("Coincident", 18, 2, 19, 2),
    Sketcher.Constraint("Coincident", 21, 1, 22, 1),
    Sketcher.Constraint("Coincident", 22, 2, 23, 2),
    Sketcher.Constraint("Coincident", 25, 1, 26, 1),
    Sketcher.Constraint("Coincident", 26, 2, 7, 1),
    Sketcher.Constraint("Coincident", 27, 2, 28, 1),
    Sketcher.Constraint("Coincident", 28, 2, 29, 1),
    Sketcher.Constraint("Coincident", 29, 2, 30, 1),
    Sketcher.Constraint("Coincident", 30, 2, 31, 1),
    Sketcher.Constraint("Coincident", 31, 2, 32, 2),
    Sketcher.Constraint("Coincident", 32, 1, 33, 1),
    Sketcher.Constraint("Coincident", 33, 2, 34, 2),
    Sketcher.Constraint("Coincident", 34, 1, 35, 1),
    Sketcher.Constraint("Coincident", 35, 2, 36, 1),
    Sketcher.Constraint("Coincident", 36, 2, 27, 1),
    Sketcher.Constraint("Horizontal", 1),
    Sketcher.Constraint("Vertical", 3),
    Sketcher.Constraint("Horizontal", 4),
    Sketcher.Constraint("Vertical", 5),
    Sketcher.Constraint("Horizontal", 6),
    Sketcher.Constraint("Vertical", 7),
    Sketcher.Constraint("Horizontal", 8),
    Sketcher.Constraint("Vertical", 9),
    Sketcher.Constraint("Horizontal", 10),
    Sketcher.Constraint("Vertical", 11),
    Sketcher.Constraint("Horizontal", 28),
    Sketcher.Constraint("Horizontal", 30),
    Sketcher.Constraint("Horizontal", 36),
    Sketcher.Constraint("PointOnObject", 0, 2, -1),
    Sketcher.Constraint("PointOnObject", 7, 2, -1),
    Sketcher.Constraint("PointOnObject", 27, 2, -1),
    Sketcher.Constraint("DistanceX", 10, 2, 10, 1, Q("5.0746 mm")),
    Sketcher.Constraint("DistanceX", 6, 1, 6, 2, Q("5.742378 mm")),
    Sketcher.Constraint("DistanceX", 8, 1, 8, 2, Q("8.14077 mm")),
    Sketcher.Constraint("DistanceY", 5, 2, 5, 1, Q("2.07215 mm")),
    Sketcher.Constraint("DistanceY", 9, 1, 9, 2, Q("2.07215 mm")),
    Sketcher.Constraint("DistanceX", 1, 2, -1, 1, Q("8.892101 mm")),
    Sketcher.Constraint("DistanceX", -1, 1, 29, 2, Q("14.620299 mm")),
    Sketcher.Constraint("DistanceY", -1, 1, 29, 2, Q("8.905401 mm")),
    Sketcher.Constraint("DistanceY", -1, 1, 35, 2, Q("8.905401 mm")),
    Sketcher.Constraint("DistanceX", 9, 2, 36, 2, Q("0.5174 mm")),
    Sketcher.Constraint("Distance", 0, Q("10.511058 mm")),
    Sketcher.Constraint("Distance", 2, Q("11.002871 mm")),
    Sketcher.Constraint("Distance", 26, Q("4.15605 mm")),
    Sketcher.Constraint("Distance", 27, Q("9.529671 mm")),
    Sketcher.Constraint("Distance", 29, Q("9.530579 mm")),
    Sketcher.Constraint("DistanceX", 1, 1, 1, 2, Q("2.581904 mm")),
    Sketcher.Constraint("DistanceX", 4, 2, 4, 1, Q("8.354867 mm")),
    Sketcher.Constraint("DistanceX", 28, 1, 28, 2, Q("2.492697 mm")),
    Sketcher.Constraint("DistanceX", 30, 2, 30, 1, Q("2.541123 mm")),
    Sketcher.Constraint("DistanceX", 36, 2, 36, 1, Q("2.541123 mm")),
    Sketcher.Constraint("DistanceY", 3, 1, 3, 2, Q("1.547103 mm")),
    Sketcher.Constraint("DistanceY", 11, 1, 11, 2, Q("0.109597 mm")),
])
pad2 = body.newObject("PartDesign::Pad", "Pad001")
pad2.Profile = sketch6
pad2.Length = 1

doc.recompute()
